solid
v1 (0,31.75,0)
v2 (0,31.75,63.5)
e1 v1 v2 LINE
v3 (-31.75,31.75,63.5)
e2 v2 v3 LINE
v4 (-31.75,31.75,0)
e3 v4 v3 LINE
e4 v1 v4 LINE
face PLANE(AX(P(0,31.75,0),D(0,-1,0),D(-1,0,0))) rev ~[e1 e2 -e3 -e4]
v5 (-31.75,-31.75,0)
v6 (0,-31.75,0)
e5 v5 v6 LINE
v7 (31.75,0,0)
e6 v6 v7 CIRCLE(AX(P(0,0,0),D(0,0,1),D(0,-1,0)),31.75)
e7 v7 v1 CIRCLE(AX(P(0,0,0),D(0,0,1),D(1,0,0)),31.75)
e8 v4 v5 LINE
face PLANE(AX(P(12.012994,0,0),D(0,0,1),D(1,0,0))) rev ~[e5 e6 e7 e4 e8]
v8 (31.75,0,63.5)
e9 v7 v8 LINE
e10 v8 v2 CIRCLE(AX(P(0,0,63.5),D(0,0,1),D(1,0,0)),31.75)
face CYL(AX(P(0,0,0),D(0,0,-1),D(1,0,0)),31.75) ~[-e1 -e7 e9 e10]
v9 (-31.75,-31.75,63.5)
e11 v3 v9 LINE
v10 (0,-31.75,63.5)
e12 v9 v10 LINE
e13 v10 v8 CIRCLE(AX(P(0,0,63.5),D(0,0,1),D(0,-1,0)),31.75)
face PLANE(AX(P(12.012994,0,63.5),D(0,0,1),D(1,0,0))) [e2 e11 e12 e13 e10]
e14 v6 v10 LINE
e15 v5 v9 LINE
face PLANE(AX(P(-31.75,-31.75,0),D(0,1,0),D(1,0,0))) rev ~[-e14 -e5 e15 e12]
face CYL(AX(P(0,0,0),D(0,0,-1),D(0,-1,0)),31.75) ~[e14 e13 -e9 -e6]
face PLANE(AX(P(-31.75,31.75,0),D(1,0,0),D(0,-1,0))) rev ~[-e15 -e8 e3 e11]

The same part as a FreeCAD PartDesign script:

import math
import FreeCAD as App
import Part
import Sketcher

V = App.Vector
Q = App.Units.Quantity

doc = App.newDocument("Part")
body = doc.addObject("PartDesign::Body", "Body")

# Sketch on XY plane
sketch1 = body.newObject("Sketcher::SketchObject", "Sketch")
sketch1.AttachmentSupport = (doc.getObject("XY_Plane"), [""])
sketch1.MapMode = "FlatFace"
sketch1.addGeometry(Part.ArcOfCircle(Part.Circle(V(0, 0, 0), V(0, 0, 1), 32), math.radians(-90), math.radians(0)), False)
sketch1.addGeometry(Part.ArcOfCircle(Part.Circle(V(0, 0, 0), V(0, 0, 1), 32), math.radians(0), math.radians(90)), False)
sketch1.addGeometry(Part.LineSegment(V(0, 32, 0), V(-32, 32, 0)), False)
sketch1.addGeometry(Part.LineSegment(V(-32, 32, 0), V(-32, -32, 0)), False)
sketch1.addGeometry(Part.LineSegment(V(-32, -32, 0), V(0, -32, 0)), False)
sketch1.addConstraint(Sketcher.Constraint("Tangent", 0, 2, 1, 1))
sketch1.addConstraint(Sketcher.Constraint("Tangent", 1, 2, 2, 1))
sketch1.addConstraint(Sketcher.Constraint("Coincident", 2, 2, 3, 1))
sketch1.addConstraint(Sketcher.Constraint("Coincident", 3, 2, 4, 1))
sketch1.addConstraint(Sketcher.Constraint("Tangent", 4, 2, 0, 1))
sketch1.addConstraint(Sketcher.Constraint("Horizontal", 2))
sketch1.addConstraint(Sketcher.Constraint("Vertical", 3))
sketch1.addConstraint(Sketcher.Constraint("Horizontal", 4))
sketch1.addConstraint(Sketcher.Constraint("Coincident", 0, 3, -1, 1))
sketch1.addConstraint(Sketcher.Constraint("Equal", 0, 1))
sketch1.addConstraint(Sketcher.Constraint("PointOnObject", 0, 2, -1))
sketch1.addConstraint(Sketcher.Constraint("Radius", 0, Q("1.25 in")))
sketch1.addConstraint(Sketcher.Constraint("DistanceX", 2, 2, 2, 1, Q("1.25 in")))
pad1 = body.newObject("PartDesign::Pad", "Pad")
pad1.Profile = sketch1
pad1.Length = Q("2.5 in")

doc.recompute()
